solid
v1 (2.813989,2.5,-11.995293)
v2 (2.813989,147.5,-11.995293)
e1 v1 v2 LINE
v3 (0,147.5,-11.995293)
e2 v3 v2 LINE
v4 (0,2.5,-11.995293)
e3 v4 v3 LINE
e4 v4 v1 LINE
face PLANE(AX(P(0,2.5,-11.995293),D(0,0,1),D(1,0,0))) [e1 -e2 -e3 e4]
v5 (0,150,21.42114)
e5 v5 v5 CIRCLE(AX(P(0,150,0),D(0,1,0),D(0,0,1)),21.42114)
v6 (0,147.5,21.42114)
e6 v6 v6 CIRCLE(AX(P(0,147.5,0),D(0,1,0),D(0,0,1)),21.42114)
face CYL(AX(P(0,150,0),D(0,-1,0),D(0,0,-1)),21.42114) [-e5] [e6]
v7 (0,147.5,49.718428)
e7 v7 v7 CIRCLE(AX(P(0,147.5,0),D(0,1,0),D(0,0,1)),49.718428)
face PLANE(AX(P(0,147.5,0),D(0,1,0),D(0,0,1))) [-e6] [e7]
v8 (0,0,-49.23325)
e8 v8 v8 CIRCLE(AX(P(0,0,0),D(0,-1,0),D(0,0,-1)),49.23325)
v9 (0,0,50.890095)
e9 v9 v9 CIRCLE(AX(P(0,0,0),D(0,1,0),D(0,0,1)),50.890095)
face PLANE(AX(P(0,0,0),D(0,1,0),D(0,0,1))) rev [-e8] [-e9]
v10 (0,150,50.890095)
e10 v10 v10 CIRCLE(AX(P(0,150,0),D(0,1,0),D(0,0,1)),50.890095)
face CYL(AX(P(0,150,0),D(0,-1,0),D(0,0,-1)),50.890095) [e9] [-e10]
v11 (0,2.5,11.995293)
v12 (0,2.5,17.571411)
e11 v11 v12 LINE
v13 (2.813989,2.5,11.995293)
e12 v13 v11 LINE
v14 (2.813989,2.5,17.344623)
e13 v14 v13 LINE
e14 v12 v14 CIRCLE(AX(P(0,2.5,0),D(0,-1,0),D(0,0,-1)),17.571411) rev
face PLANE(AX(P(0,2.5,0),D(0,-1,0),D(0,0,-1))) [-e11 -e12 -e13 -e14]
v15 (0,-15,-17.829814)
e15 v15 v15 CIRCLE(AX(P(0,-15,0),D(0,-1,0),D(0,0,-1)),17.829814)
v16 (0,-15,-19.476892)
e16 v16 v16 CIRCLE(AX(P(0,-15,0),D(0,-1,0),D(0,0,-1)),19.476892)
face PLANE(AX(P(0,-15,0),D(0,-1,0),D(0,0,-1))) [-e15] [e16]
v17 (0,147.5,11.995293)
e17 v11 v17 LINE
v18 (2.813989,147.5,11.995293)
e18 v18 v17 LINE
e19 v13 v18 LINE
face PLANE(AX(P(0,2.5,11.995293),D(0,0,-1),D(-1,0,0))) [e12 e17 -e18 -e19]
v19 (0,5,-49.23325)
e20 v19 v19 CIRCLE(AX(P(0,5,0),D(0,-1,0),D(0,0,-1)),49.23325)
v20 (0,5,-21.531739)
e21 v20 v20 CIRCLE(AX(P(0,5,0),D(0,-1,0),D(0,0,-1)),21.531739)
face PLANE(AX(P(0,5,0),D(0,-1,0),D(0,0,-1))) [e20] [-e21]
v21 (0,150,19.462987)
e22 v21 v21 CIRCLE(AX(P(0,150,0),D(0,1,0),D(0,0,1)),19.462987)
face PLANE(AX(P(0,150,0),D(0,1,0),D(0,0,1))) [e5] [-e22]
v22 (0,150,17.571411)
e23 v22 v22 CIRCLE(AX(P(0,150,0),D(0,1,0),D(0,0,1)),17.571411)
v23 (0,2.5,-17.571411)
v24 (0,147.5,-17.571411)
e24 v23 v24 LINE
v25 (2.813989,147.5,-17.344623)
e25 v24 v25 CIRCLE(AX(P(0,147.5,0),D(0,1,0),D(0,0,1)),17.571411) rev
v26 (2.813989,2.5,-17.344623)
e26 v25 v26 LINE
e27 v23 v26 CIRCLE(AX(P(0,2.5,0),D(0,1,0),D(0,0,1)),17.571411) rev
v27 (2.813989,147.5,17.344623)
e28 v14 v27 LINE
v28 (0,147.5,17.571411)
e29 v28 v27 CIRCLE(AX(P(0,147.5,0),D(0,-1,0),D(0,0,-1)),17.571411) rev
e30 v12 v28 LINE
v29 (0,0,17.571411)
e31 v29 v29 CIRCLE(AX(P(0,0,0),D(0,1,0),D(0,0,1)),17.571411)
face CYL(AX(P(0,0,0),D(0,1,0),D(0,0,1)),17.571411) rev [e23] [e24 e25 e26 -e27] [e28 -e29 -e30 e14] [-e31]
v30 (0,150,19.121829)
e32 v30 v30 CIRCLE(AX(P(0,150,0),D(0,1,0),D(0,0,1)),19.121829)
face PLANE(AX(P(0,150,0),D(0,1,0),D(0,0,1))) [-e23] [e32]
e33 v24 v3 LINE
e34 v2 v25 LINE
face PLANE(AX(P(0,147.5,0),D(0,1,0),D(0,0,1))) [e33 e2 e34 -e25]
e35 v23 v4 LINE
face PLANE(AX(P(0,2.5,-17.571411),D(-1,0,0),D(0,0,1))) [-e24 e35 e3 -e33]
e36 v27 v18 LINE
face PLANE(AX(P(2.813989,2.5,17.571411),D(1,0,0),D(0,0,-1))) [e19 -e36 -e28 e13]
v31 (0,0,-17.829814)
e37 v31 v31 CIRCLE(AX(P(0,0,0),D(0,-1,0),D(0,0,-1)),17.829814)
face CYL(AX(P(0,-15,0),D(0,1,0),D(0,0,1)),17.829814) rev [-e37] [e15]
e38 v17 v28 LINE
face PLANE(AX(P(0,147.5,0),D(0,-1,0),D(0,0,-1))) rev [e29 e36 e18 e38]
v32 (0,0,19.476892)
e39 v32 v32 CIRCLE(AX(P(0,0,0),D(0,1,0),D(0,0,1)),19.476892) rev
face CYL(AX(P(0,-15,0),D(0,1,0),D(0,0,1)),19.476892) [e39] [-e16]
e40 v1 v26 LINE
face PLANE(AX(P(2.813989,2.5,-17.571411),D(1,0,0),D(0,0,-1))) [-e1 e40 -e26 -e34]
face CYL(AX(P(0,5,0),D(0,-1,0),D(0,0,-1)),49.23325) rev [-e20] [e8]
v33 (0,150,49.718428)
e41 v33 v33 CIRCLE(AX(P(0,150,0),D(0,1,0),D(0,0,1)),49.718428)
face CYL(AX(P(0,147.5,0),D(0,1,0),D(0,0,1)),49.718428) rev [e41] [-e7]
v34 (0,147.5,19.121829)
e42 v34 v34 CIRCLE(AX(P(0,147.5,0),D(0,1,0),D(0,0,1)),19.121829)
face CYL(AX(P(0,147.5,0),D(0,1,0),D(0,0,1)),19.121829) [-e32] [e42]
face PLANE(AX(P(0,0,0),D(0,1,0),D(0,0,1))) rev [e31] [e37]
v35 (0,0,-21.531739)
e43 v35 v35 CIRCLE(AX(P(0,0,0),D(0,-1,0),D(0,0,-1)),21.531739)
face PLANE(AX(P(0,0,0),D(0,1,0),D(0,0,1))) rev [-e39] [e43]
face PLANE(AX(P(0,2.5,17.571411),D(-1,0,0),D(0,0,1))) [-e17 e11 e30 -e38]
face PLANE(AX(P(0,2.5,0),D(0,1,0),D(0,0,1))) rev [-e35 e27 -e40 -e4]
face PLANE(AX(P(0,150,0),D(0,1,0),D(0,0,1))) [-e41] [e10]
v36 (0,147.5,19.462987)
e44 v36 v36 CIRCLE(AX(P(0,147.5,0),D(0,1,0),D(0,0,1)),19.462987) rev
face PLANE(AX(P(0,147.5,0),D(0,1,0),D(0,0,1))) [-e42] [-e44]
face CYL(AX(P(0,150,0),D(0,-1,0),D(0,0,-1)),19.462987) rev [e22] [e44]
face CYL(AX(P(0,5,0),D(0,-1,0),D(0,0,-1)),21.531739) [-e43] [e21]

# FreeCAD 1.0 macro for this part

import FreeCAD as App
import Part
import Sketcher

V = App.Vector


def add_polygon(sketch, points):
    """Adds a closed chain of lines whose ends are joined by coincident constraints."""
    first, n = sketch.GeometryCount, len(points)
    for a, b in zip(points, points[1:] + points[:1]):
        sketch.addGeometry(Part.LineSegment(App.Vector(*a, 0), App.Vector(*b, 0)), False)
    for i in range(n):
        sketch.addConstraint(Sketcher.Constraint("Coincident", first + i, 2, first + (i + 1) % n, 1))

doc = App.newDocument("Part")
body = doc.addObject("PartDesign::Body", "Body")

# Sketch on XZ plane
sketch1 = body.newObject("Sketcher::SketchObject", "Sketch")
sketch1.AttachmentSupport = (doc.getObject("XZ_Plane"), [""])
sketch1.MapMode = "FlatFace"
sketch1.addGeometry(Part.Circle(V(0, 0, 0), V(0, 0, 1), 51), False)
sketch1.addConstraint(Sketcher.Constraint("Coincident", 0, 3, -1, 1))
sketch1.addConstraint(Sketcher.Constraint("Diameter", 0, 101.780189))
pad1 = body.newObject("PartDesign::Pad", "Pad")
pad1.Profile = sketch1
pad1.Length = 150
pad1.Reversed = True

# Sketch on XZ plane
sketch2 = body.newObject("Sketcher::SketchObject", "Sketch001")
sketch2.AttachmentSupport = (doc.getObject("XZ_Plane"), [""])
sketch2.MapMode = "FlatFace"
sketch2.AttachmentOffset = App.Placement(V(0, 0, -150), App.Rotation())
sketch2.addGeometry(Part.Circle(V(0, 0, 0), V(0, 0, 1), 18), False)
sketch2.addConstraint(Sketcher.Constraint("Coincident", 0, 3, -1, 1))
sketch2.addConstraint(Sketcher.Constraint("Diameter", 0, 35.142821))
pocket1 = body.newObject("PartDesign::Pocket", "Pocket")
pocket1.Profile = sketch2
pocket1.Type = "ThroughAll"
pocket1.Reversed = True

# Sketch on XZ plane
sketch3 = body.newObject("Sketcher::SketchObject", "Sketch002")
sketch3.AttachmentSupport = (doc.getObject("XZ_Plane"), [""])
sketch3.MapMode = "FlatFace"
sketch3.AttachmentOffset = App.Placement(V(0, 0, -150), App.Rotation())
sketch3.addGeometry(Part.Circle(V(0, 0, 0), V(0, 0, 1), 50), False)
sketch3.addGeometry(Part.Circle(V(0, 0, 0), V(0, 0, 1), 19), False)
sketch3.addConstraint(Sketcher.Constraint("Coincident", 0, 3, -1, 1))
sketch3.addConstraint(Sketcher.Constraint("Coincident", 1, 3, -1, 1))
sketch3.addConstraint(Sketcher.Constraint("Diameter", 1, 38.243658))
sketch3.addConstraint(Sketcher.Constraint("Diameter", 0, 99.436856))
pocket2 = body.newObject("PartDesign::Pocket", "Pocket001")
pocket2.Profile = sketch3
pocket2.Length = 2.5
pocket2.Reversed = True

# Sketch on XZ plane
sketch4 = body.newObject("Sketcher::SketchObject", "Sketch003")
sketch4.AttachmentSupport = (doc.getObject("XZ_Plane"), [""])
sketch4.MapMode = "FlatFace"
sketch4.addGeometry(Part.Circle(V(0, 0, 0), V(0, 0, 1), 19), False)
sketch4.addGeometry(Part.Circle(V(0, 0, 0), V(0, 0, 1), 18), False)
sketch4.addConstraint(Sketcher.Constraint("Coincident", 0, 3, -1, 1))
sketch4.addConstraint(Sketcher.Constraint("Coincident", 1, 3, -1, 1))
sketch4.addConstraint(Sketcher.Constraint("Diameter", 0, 38.953785))
sketch4.addConstraint(Sketcher.Constraint("Diameter", 1, 35.659627))
pad2 = body.newObject("PartDesign::Pad", "Pad001")
pad2.Profile = sketch4
pad2.Length = 15

# Sketch on XZ plane
sketch5 = body.newObject("Sketcher::SketchObject", "Sketch004")
sketch5.AttachmentSupport = (doc.getObject("XZ_Plane"), [""])
sketch5.MapMode = "FlatFace"
sketch5.addGeometry(Part.Circle(V(0, 0, 0), V(0, 0, 1), 49), False)
sketch5.addGeometry(Part.Circle(V(0, 0, 0), V(0, 0, 1), 22), False)
sketch5.addConstraint(Sketcher.Constraint("Coincident", 0, 3, -1, 1))
sketch5.addConstraint(Sketcher.Constraint("Coincident", 1, 3, -1, 1))
sketch5.addConstraint(Sketcher.Constraint("Diameter", 0, 98.4665))
sketch5.addConstraint(Sketcher.Constraint("Diameter", 1, 43.063479))
pocket3 = body.newObject("PartDesign::Pocket", "Pocket002")
pocket3.Profile = sketch5
pocket3.Length = 5

# Sketch on XZ plane
sketch6 = body.newObject("Sketcher::SketchObject", "Sketch005")
sketch6.AttachmentSupport = (doc.getObject("XZ_Plane"), [""])
sketch6.MapMode = "FlatFace"
sketch6.AttachmentOffset = App.Placement(V(0, 0, -147.5), App.Rotation())
add_polygon(sketch6, [(0, -17.6), (0, -12), (2.8, -12), (2.8, -17.6)])  # lines 0-3
add_polygon(sketch6, [(0, 12), (0, 17.6), (2.8, 17.6), (2.8, 12)])  # lines 4-7
sketch6.addConstraint(Sketcher.Constraint("Vertical", 0))
sketch6.addConstraint(Sketcher.Constraint("Horizontal", 1))
sketch6.addConstraint(Sketcher.Constraint("Vertical", 2))
sketch6.addConstraint(Sketcher.Constraint("Horizontal", 3))
sketch6.addConstraint(Sketcher.Constraint("Vertical", 4))
sketch6.addConstraint(Sketcher.Constraint("Horizontal", 5))
sketch6.addConstraint(Sketcher.Constraint("Vertical", 6))
sketch6.addConstraint(Sketcher.Constraint("Horizontal", 7))
sketch6.addConstraint(Sketcher.Constraint("Symmetric", 3, 2, 4, 2, -1, 1))
sketch6.addConstraint(Sketcher.Constraint("Symmetric", 1, 2, 6, 2, -1))
sketch6.addConstraint(Sketcher.Constraint("PointOnObject", 0, 2, -2))
sketch6.addConstraint(Sketcher.Constraint("DistanceX", 1, 1, 1, 2, 2.813989))
sketch6.addConstraint(Sketcher.Constraint("DistanceY", 0, 1, 0, 2, 5.576118))
sketch6.addConstraint(Sketcher.Constraint("DistanceY", 2, 2, -1, 1, 17.571411))
pad3 = body.newObject("PartDesign::Pad", "Pad002")
pad3.Profile = sketch6
pad3.Length = 145

# Sketch on XZ plane
sketch7 = body.newObject("Sketcher::SketchObject", "Sketch006")
sketch7.AttachmentSupport = (doc.getObject("XZ_Plane"), [""])
sketch7.MapMode = "FlatFace"
sketch7.AttachmentOffset = App.Placement(V(0, 0, -147.5), App.Rotation())
sketch7.addGeometry(Part.Circle(V(0, 0, 0), V(0, 0, 1), 21), False)
sketch7.addGeometry(Part.Circle(V(0, 0, 0), V(0, 0, 1), 19), False)
sketch7.addConstraint(Sketcher.Constraint("Coincident", 0, 3, -1, 1))
sketch7.addConstraint(Sketcher.Constraint("Coincident", 1, 3, -1, 1))
sketch7.addConstraint(Sketcher.Constraint("Diameter", 0, 42.84228))
sketch7.addConstraint(Sketcher.Constraint("Diameter", 1, 38.925974))
pad4 = body.newObject("PartDesign::Pad", "Pad003")
pad4.Profile = sketch7
pad4.Length = 2.5
pad4.Reversed = True

doc.recompute()
